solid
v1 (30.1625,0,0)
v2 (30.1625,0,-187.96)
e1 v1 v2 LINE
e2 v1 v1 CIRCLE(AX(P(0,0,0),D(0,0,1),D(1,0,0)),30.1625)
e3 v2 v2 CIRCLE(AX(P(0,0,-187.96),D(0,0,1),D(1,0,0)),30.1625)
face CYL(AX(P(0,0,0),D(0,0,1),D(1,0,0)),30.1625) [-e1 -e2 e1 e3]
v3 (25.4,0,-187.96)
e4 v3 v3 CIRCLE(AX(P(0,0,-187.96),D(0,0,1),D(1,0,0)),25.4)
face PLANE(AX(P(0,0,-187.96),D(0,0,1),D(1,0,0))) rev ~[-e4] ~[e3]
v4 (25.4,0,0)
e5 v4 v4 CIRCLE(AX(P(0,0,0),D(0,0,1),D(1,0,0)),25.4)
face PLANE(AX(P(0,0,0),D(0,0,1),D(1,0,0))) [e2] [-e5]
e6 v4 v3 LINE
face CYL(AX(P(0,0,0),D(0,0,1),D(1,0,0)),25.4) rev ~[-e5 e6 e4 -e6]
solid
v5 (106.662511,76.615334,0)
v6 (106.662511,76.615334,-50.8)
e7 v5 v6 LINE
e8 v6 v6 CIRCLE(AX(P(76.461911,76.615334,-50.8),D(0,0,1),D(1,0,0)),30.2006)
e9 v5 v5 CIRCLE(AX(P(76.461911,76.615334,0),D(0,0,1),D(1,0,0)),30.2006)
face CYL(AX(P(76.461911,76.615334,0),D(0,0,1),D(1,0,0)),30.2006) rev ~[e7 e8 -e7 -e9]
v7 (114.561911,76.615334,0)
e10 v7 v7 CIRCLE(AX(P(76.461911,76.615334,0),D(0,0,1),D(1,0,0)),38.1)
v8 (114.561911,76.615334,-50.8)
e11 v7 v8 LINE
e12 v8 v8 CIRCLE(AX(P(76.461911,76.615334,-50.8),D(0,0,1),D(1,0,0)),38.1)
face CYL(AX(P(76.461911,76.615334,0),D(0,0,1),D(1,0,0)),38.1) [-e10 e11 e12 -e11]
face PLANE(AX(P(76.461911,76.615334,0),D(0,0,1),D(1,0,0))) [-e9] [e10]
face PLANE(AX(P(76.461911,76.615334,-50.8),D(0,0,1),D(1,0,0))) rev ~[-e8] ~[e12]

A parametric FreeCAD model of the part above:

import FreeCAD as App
import Part
import Sketcher
Q = App.Units.Quantity

doc = App.newDocument("Part")
body = doc.addObject("PartDesign::Body", "Body")

# Sketch on XY plane
sketch1 = body.newObject("Sketcher::SketchObject", "Sketch")
sketch1.AttachmentSupport = (doc.getObject("XY_Plane"), [""])
sketch1.MapMode = "FlatFace"
sketch1.addGeometry(Part.Circle(App.Vector(0, 0, 0), App.Vector(0, 0, 1), 30), False)
sketch1.addGeometry(Part.Circle(App.Vector(0, 0, 0), App.Vector(0, 0, 1), 25), False)
sketch1.addConstraint(Sketcher.Constraint("Coincident", 0, 3, -1, 1))
sketch1.addConstraint(Sketcher.Constraint("Coincident", 1, 3, -1, 1))
sketch1.addConstraint(Sketcher.Constraint("Diameter", 1, Q("2 in")))
sketch1.addConstraint(Sketcher.Constraint("Diameter", 0, Q("2.375 in")))
pad1 = body.newObject("PartDesign::Pad", "Pad")
pad1.Profile = sketch1
pad1.Length = Q("7.4 in")
pad1.Reversed = True
body2 = doc.addObject("PartDesign::Body", "Body001")

# Sketch on XY plane
sketch2 = body2.newObject("Sketcher::SketchObject", "Sketch001")
sketch2.AttachmentSupport = (doc.getObject("XY_Plane001"), [""])
sketch2.MapMode = "FlatFace"
sketch2.addGeometry(Part.Circle(App.Vector(76, 77, 0), App.Vector(0, 0, 1), 38), False)
sketch2.addGeometry(Part.Circle(App.Vector(76, 77, 0), App.Vector(0, 0, 1), 30), False)
sketch2.addConstraint(Sketcher.Constraint("Coincident", 1, 3, 0, 3))
sketch2.addConstraint(Sketcher.Constraint("Diameter", 0, Q("3 in")))
sketch2.addConstraint(Sketcher.Constraint("Diameter", 1, Q("2.378 in")))
sketch2.addConstraint(Sketcher.Constraint("DistanceX", -1, 1, 0, 3, 76.461911))
sketch2.addConstraint(Sketcher.Constraint("DistanceY", -1, 1, 0, 3, 76.615334))
pad2 = body2.newObject("PartDesign::Pad", "Pad001")
pad2.Profile = sketch2
pad2.Length = Q("2 in")
pad2.Reversed = True

doc.recompute()
